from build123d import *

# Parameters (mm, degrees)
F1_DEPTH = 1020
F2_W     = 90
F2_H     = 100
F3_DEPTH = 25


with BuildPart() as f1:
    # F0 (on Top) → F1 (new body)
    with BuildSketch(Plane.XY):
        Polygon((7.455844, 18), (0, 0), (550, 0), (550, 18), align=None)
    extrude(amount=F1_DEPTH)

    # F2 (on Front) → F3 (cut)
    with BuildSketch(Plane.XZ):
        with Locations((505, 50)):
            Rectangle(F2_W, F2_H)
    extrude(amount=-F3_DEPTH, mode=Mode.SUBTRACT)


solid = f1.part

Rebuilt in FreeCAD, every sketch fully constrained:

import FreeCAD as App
import Part
import Sketcher
Q = App.Units.Quantity

doc = App.newDocument("Part")
params = doc.addObject("Spreadsheet::Sheet", "Params")
for row, (alias, value) in enumerate([
    ("sketch1_width", "550 mm"),
    ("sketch1_height", "18 mm"),
    ("pad1_length", "1020 mm"),
    ("sketch2_width", "90 mm"),
    ("sketch2_height", "100 mm"),
    ("pocket1_length", "25 mm"),
], start=1):
    params.set(f"A{row}", alias)
    params.set(f"B{row}", "=" + value)
    params.setAlias(f"B{row}", alias)

body = doc.addObject("PartDesign::Body", "Body")

# Sketch on XY plane
sketch1 = body.newObject("Sketcher::SketchObject", "Sketch")
sketch1.AttachmentSupport = (doc.getObject("XY_Plane"), [""])
sketch1.MapMode = "FlatFace"
sketch1.addGeometry(Part.LineSegment(App.Vector(7.455844, 18, 0), App.Vector(0, 0, 0)), False)
sketch1.addGeometry(Part.LineSegment(App.Vector(0, 0, 0), App.Vector(550, 0, 0)), False)
sketch1.addGeometry(Part.LineSegment(App.Vector(550, 0, 0), App.Vector(550, 18, 0)), False)
sketch1.addGeometry(Part.LineSegment(App.Vector(550, 18, 0), App.Vector(7.455844, 18, 0)), False)
sketch1.addConstraint(Sketcher.Constraint("Coincident", 0, 2, 1, 1))
sketch1.addConstraint(Sketcher.Constraint("Coincident", 1, 2, 2, 1))
sketch1.addConstraint(Sketcher.Constraint("Coincident", 2, 2, 3, 1))
sketch1.addConstraint(Sketcher.Constraint("Coincident", 3, 2, 0, 1))
sketch1.addConstraint(Sketcher.Constraint("Horizontal", 1))
sketch1.addConstraint(Sketcher.Constraint("Vertical", 2))
sketch1.addConstraint(Sketcher.Constraint("Horizontal", 3))
sketch1.addConstraint(Sketcher.Constraint("Coincident", 0, 2, -1, 1))
sketch1.addConstraint(Sketcher.Constraint("DistanceX", 1, 1, 1, 2, 550.0))
sketch1.addConstraint(Sketcher.Constraint("DistanceY", 2, 1, 2, 2, 18.0))
sketch1.addConstraint(Sketcher.Constraint("Angle", 0, Q("-112.5 deg")))
sketch1.setExpression("Constraints[8]", "Params.sketch1_width")
sketch1.setExpression("Constraints[9]", "Params.sketch1_height")
pad1 = body.newObject("PartDesign::Pad", "Pad")
pad1.Profile = sketch1
pad1.setExpression("Length", "Params.pad1_length")

# Sketch on XZ plane
sketch2 = body.newObject("Sketcher::SketchObject", "Sketch001")
sketch2.AttachmentSupport = (doc.getObject("XZ_Plane"), [""])
sketch2.MapMode = "FlatFace"
sketch2.addGeometry(Part.LineSegment(App.Vector(460, 100, 0), App.Vector(460, 0, 0)), False)
sketch2.addGeometry(Part.LineSegment(App.Vector(460, 0, 0), App.Vector(550, 0, 0)), False)
sketch2.addGeometry(Part.LineSegment(App.Vector(550, 0, 0), App.Vector(550, 100, 0)), False)
sketch2.addGeometry(Part.LineSegment(App.Vector(550, 100, 0), App.Vector(460, 100, 0)), False)
sketch2.addConstraint(Sketcher.Constraint("Coincident", 0, 2, 1, 1))
sketch2.addConstraint(Sketcher.Constraint("Coincident", 1, 2, 2, 1))
sketch2.addConstraint(Sketcher.Constraint("Coincident", 2, 2, 3, 1))
sketch2.addConstraint(Sketcher.Constraint("Coincident", 3, 2, 0, 1))
sketch2.addConstraint(Sketcher.Constraint("Vertical", 0))
sketch2.addConstraint(Sketcher.Constraint("Horizontal", 1))
sketch2.addConstraint(Sketcher.Constraint("Vertical", 2))
sketch2.addConstraint(Sketcher.Constraint("Horizontal", 3))
sketch2.addConstraint(Sketcher.Constraint("PointOnObject", 0, 2, -1))
sketch2.addConstraint(Sketcher.Constraint("DistanceX", 1, 1, 1, 2, 90.0))
sketch2.addConstraint(Sketcher.Constraint("DistanceY", 0, 2, 0, 1, 100.0))
sketch2.addConstraint(Sketcher.Constraint("DistanceX", -1, 1, 0, 2, 460.0))
sketch2.setExpression("Constraints[9]", "Params.sketch2_width")
sketch2.setExpression("Constraints[10]", "Params.sketch2_height")
pocket1 = body.newObject("PartDesign::Pocket", "Pocket")
pocket1.Profile = sketch2
pocket1.setExpression("Length", "Params.pocket1_length")

doc.recompute()
